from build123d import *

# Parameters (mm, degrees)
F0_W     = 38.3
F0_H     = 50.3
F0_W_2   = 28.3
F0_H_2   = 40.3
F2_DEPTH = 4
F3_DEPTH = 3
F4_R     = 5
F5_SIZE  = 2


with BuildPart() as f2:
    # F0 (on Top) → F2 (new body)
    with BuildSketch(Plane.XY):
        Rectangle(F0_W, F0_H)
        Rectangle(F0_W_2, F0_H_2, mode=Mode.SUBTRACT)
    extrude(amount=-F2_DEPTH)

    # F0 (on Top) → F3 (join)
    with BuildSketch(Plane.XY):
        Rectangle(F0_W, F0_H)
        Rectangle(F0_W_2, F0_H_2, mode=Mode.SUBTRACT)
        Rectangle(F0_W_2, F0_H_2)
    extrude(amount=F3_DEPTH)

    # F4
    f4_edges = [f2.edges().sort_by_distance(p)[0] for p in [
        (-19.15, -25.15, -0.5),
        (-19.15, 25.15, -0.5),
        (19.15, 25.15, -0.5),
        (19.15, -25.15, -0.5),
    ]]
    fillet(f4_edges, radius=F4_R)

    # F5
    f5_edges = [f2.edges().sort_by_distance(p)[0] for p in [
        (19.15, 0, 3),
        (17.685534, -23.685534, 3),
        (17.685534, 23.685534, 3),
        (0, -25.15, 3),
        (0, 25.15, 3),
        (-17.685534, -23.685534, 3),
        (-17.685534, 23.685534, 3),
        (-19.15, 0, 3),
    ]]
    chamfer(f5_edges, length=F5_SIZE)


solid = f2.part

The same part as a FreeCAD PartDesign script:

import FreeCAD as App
import Part
import Sketcher

V = App.Vector


def edges_at(feature, points):
    """Names of the edges that pass closest to the given points."""
    edges = feature.Shape.Edges
    near = lambda p: min(range(len(edges)), key=lambda i: edges[i].distToShape(Part.Vertex(*p))[0])
    return sorted({f"Edge{near(p) + 1}" for p in points})

doc = App.newDocument("Part")
body = doc.addObject("PartDesign::Body", "Body")

# Sketch on XY plane
sketch1 = body.newObject("Sketcher::SketchObject", "Sketch")
sketch1.AttachmentSupport = (doc.getObject("XY_Plane"), [""])
sketch1.MapMode = "FlatFace"
sketch1.addGeometry([
    Part.LineSegment(V(-19, 25, 0), V(-19, -25, 0)),  # 0
    Part.LineSegment(V(-19, -25, 0), V(19, -25, 0)),  # 1
    Part.LineSegment(V(19, -25, 0), V(19, 25, 0)),  # 2
    Part.LineSegment(V(19, 25, 0), V(-19, 25, 0)),  # 3
    Part.LineSegment(V(14, -20, 0), V(-14, -20, 0)),  # 4
    Part.LineSegment(V(-14, -20, 0), V(-14, 20, 0)),  # 5
    Part.LineSegment(V(-14, 20, 0), V(14, 20, 0)),  # 6
    Part.LineSegment(V(14, 20, 0), V(14, -20, 0)),  # 7
], False)
sketch1.addConstraint([
    Sketcher.Constraint("Coincident", 0, 2, 1, 1),
    Sketcher.Constraint("Coincident", 1, 2, 2, 1),
    Sketcher.Constraint("Coincident", 2, 2, 3, 1),
    Sketcher.Constraint("Coincident", 3, 2, 0, 1),
    Sketcher.Constraint("Coincident", 4, 2, 5, 1),
    Sketcher.Constraint("Coincident", 5, 2, 6, 1),
    Sketcher.Constraint("Coincident", 6, 2, 7, 1),
    Sketcher.Constraint("Coincident", 7, 2, 4, 1),
    Sketcher.Constraint("Vertical", 0),
    Sketcher.Constraint("Horizontal", 1),
    Sketcher.Constraint("Vertical", 2),
    Sketcher.Constraint("Horizontal", 3),
    Sketcher.Constraint("Horizontal", 4),
    Sketcher.Constraint("Vertical", 5),
    Sketcher.Constraint("Horizontal", 6),
    Sketcher.Constraint("Vertical", 7),
    Sketcher.Constraint("Symmetric", 0, 2, 2, 2, -1, 1),
    Sketcher.Constraint("Symmetric", 4, 2, 6, 2, -1, 1),
    Sketcher.Constraint("DistanceX", 1, 1, 1, 2, 38.3),
    Sketcher.Constraint("DistanceX", 4, 2, 4, 1, 28.3),
    Sketcher.Constraint("DistanceY", 0, 2, 0, 1, 50.3),
    Sketcher.Constraint("DistanceY", 5, 1, 5, 2, 40.3),
])
pad1 = body.newObject("PartDesign::Pad", "Pad")
pad1.Profile = sketch1
pad1.Length = 4
pad1.Reversed = True

# Sketch on XY plane
sketch2 = body.newObject("Sketcher::SketchObject", "Sketch001")
sketch2.AttachmentSupport = (doc.getObject("XY_Plane"), [""])
sketch2.MapMode = "FlatFace"
sketch2.addGeometry([
    Part.LineSegment(V(-19, 25, 0), V(-19, -25, 0)),
    Part.LineSegment(V(-19, -25, 0), V(19, -25, 0)),
    Part.LineSegment(V(19, -25, 0), V(19, 25, 0)),
    Part.LineSegment(V(19, 25, 0), V(-19, 25, 0)),
], False)
sketch2.addConstraint([
    Sketcher.Constraint("Coincident", 0, 2, 1, 1),
    Sketcher.Constraint("Coincident", 1, 2, 2, 1),
    Sketcher.Constraint("Coincident", 2, 2, 3, 1),
    Sketcher.Constraint("Coincident", 3, 2, 0, 1),
    Sketcher.Constraint("Vertical", 0),
    Sketcher.Constraint("Horizontal", 1),
    Sketcher.Constraint("Vertical", 2),
    Sketcher.Constraint("Horizontal", 3),
    Sketcher.Constraint("Symmetric", 0, 2, 2, 2, -1, 1),
    Sketcher.Constraint("DistanceX", 1, 1, 1, 2, 38.3),
    Sketcher.Constraint("DistanceY", 0, 2, 0, 1, 50.3),
])
pad2 = body.newObject("PartDesign::Pad", "Pad001")
pad2.Profile = sketch2
pad2.Length = 3
doc.recompute()

fillet = body.newObject("PartDesign::Fillet", "Fillet")
fillet.Base = (pad2, edges_at(pad2, [
    (-19.15, -25.15, -0.5),
    (-19.15, 25.15, -0.5),
    (19.15, 25.15, -0.5),
    (19.15, -25.15, -0.5),
]))
fillet.Radius = 5
doc.recompute()

chamfer = body.newObject("PartDesign::Chamfer", "Chamfer")
chamfer.Base = (fillet, edges_at(fillet, [
    (19.15, 0, 3),
    (17.686, -23.686, 3),
    (17.686, 23.686, 3),
    (0, -25.15, 3),
    (0, 25.15, 3),
    (-17.686, -23.686, 3),
    (-17.686, 23.686, 3),
    (-19.15, 0, 3),
]))
chamfer.Size = 2

doc.recompute()
